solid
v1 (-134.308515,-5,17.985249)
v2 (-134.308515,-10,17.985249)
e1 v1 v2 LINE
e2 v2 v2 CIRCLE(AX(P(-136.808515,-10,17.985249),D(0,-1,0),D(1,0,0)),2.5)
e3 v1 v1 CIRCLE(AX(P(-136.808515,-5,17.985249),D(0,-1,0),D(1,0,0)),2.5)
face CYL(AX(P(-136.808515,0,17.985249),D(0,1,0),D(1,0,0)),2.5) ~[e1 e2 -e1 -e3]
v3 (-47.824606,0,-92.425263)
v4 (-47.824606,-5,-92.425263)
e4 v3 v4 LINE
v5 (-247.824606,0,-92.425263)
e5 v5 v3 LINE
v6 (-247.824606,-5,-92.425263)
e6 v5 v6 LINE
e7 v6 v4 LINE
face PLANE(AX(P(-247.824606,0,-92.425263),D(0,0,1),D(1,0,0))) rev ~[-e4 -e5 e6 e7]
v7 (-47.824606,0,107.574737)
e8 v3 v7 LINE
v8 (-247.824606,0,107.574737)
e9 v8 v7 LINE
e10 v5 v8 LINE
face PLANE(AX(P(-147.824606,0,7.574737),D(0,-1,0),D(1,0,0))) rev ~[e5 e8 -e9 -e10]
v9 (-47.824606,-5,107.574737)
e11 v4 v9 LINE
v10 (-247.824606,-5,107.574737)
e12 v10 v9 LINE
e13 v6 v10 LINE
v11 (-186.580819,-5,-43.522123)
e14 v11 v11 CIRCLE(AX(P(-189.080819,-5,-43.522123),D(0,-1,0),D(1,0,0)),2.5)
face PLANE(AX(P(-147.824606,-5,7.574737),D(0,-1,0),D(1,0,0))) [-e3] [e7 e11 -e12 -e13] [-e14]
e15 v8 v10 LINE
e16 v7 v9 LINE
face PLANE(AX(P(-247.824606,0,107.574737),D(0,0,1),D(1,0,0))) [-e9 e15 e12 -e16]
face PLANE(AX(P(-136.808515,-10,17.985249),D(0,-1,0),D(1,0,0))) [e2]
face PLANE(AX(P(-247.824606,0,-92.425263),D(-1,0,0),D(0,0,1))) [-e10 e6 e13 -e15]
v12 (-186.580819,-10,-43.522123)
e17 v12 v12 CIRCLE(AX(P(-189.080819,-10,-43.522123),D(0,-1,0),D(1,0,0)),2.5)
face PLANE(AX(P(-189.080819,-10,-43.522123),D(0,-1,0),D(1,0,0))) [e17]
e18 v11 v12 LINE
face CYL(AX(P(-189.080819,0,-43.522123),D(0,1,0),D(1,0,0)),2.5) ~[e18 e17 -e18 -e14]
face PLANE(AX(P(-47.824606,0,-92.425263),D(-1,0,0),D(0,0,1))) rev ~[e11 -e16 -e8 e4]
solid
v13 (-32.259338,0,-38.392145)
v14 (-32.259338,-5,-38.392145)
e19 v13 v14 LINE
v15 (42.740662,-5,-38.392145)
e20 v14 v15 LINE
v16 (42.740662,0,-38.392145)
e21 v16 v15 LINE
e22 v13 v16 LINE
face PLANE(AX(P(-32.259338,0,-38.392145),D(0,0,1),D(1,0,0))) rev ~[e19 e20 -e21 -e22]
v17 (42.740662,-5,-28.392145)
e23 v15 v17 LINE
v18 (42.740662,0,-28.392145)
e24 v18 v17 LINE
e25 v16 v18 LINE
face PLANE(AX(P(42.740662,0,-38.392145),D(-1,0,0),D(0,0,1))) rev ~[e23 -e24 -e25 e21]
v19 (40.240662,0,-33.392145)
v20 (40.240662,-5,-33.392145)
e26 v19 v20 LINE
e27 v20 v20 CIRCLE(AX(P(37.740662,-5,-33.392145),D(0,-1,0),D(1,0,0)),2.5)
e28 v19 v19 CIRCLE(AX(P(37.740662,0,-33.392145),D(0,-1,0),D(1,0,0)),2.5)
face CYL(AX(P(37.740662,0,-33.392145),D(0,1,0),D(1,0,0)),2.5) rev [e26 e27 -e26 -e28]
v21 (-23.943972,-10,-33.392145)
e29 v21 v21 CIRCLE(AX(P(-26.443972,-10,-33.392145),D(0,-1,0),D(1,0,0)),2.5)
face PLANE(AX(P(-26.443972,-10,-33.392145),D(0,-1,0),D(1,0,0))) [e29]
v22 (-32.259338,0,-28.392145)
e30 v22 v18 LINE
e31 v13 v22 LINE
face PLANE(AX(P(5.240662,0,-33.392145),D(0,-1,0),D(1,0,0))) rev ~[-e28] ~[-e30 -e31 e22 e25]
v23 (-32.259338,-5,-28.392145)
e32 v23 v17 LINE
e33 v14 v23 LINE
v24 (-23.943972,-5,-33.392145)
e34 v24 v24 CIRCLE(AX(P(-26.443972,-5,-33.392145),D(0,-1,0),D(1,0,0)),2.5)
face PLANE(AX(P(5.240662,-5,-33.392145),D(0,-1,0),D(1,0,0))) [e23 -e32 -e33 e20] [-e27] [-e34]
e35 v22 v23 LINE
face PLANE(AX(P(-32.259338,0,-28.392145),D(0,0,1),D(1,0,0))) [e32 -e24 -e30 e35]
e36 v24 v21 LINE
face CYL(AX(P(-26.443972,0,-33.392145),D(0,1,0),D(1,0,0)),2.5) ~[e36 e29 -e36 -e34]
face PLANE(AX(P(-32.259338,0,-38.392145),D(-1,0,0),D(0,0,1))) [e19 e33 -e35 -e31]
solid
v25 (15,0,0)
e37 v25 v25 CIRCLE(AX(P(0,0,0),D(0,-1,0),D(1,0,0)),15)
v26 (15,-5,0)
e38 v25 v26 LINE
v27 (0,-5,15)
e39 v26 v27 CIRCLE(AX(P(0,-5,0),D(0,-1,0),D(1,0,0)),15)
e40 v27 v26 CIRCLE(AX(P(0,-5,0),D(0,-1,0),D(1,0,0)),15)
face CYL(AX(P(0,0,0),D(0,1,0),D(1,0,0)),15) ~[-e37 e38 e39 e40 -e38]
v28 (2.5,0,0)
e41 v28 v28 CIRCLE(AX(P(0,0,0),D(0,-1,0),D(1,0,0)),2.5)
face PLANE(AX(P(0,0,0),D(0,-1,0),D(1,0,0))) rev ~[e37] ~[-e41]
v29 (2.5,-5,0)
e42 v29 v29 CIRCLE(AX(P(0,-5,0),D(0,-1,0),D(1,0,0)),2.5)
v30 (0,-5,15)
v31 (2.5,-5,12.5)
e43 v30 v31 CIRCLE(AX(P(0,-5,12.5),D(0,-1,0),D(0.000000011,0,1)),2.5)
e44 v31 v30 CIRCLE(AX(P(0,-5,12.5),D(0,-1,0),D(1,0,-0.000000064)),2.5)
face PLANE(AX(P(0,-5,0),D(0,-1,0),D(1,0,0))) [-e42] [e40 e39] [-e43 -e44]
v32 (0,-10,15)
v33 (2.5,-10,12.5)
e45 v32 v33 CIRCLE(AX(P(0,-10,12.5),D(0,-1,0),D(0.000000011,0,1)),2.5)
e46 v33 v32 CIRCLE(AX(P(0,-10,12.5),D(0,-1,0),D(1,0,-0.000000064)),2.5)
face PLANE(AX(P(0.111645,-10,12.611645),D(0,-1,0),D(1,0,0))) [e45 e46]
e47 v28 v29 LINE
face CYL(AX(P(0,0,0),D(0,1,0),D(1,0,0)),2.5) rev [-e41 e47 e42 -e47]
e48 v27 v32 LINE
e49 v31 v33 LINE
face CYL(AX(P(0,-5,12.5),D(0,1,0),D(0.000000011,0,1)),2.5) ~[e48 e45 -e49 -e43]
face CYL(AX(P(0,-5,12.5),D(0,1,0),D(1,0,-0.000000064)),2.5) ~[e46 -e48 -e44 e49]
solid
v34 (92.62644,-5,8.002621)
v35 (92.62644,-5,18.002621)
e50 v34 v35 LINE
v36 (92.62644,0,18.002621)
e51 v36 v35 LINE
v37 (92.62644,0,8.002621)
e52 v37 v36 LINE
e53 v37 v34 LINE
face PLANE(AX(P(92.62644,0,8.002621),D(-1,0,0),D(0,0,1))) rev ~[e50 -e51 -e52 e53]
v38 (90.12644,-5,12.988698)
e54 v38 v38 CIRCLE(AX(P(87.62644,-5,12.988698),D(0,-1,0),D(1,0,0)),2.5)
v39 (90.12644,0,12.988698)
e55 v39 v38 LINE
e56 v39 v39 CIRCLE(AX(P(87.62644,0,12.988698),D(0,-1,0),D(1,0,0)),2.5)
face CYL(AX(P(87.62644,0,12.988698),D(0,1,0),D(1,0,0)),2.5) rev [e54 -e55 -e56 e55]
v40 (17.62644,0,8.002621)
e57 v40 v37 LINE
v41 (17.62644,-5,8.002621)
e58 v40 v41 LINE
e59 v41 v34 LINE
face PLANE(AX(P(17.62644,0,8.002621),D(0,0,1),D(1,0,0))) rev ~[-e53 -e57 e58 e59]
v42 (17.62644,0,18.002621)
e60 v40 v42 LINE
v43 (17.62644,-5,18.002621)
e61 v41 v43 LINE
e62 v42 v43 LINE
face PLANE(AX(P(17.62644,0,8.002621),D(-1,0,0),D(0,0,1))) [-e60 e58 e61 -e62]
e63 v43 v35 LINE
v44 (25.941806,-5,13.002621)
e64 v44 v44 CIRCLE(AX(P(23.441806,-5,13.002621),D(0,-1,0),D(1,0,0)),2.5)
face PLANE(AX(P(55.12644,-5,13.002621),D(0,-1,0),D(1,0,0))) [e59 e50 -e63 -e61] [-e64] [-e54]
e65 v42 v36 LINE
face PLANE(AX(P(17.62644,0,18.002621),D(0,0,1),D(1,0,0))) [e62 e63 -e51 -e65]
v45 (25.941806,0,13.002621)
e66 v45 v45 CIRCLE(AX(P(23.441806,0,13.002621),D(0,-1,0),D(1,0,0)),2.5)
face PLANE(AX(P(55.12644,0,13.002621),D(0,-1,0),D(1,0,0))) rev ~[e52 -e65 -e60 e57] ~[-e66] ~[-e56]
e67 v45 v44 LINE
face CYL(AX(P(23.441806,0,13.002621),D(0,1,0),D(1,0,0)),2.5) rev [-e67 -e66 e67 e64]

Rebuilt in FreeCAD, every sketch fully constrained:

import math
import FreeCAD as App
import Part
import Sketcher
Q = App.Units.Quantity


def add_polygon(sketch, points):
    """Adds a closed chain of lines whose ends are joined by coincident constraints."""
    first, n = sketch.GeometryCount, len(points)
    for a, b in zip(points, points[1:] + points[:1]):
        sketch.addGeometry(Part.LineSegment(App.Vector(*a, 0), App.Vector(*b, 0)), False)
    for i in range(n):
        sketch.addConstraint(Sketcher.Constraint("Coincident", first + i, 2, first + (i + 1) % n, 1))

doc = App.newDocument("Part")
params = doc.addObject("Spreadsheet::Sheet", "Params")
for row, (alias, value) in enumerate([
    ("sketch1_diameter", "30 mm"),
    ("sketch1_diameter2", "5 mm"),
    ("pad1_length", "5 mm"),
    ("sketch2_radius", "2.5 mm"),
    ("pad2_length", "5 mm"),
    ("sketch3_diameter", "5 mm"),
    ("sketch3_width", "200 mm"),
    ("pad3_length", "5 mm"),
    ("sketch4_diameter", "5 mm"),
    ("pad4_length", "10 mm"),
    ("sketch5_diameter", "5 mm"),
    ("pad5_length", "10 mm"),
    ("sketch6_diameter", "5 mm"),
    ("sketch6_width", "75 mm"),
    ("sketch6_height", "10 mm"),
    ("pad6_length", "5 mm"),
    ("sketch7_diameter", "5 mm"),
    ("sketch7_width", "75 mm"),
    ("sketch7_height", "10 mm"),
    ("pad7_length", "5 mm"),
    ("sketch8_diameter", "5 mm"),
    ("pad8_length", "10 mm"),
], start=1):
    params.set(f"A{row}", alias)
    params.set(f"B{row}", "=" + value)
    params.setAlias(f"B{row}", alias)

body = doc.addObject("PartDesign::Body", "Body")

# Sketch on XZ plane
sketch1 = doc.addObject("Sketcher::SketchObject", "Sketch")
body.addObject(sketch1)
sketch1.AttachmentSupport = (doc.XZ_Plane, [""])
sketch1.MapMode = "FlatFace"
sketch1.addGeometry([
    Part.Circle(App.Vector(0, 0, 0), App.Vector(0, 0, 1), 15),
    Part.Circle(App.Vector(0, 0, 0), App.Vector(0, 0, 1), 2.5),
], False)
sketch1.addConstraint([
    Sketcher.Constraint("Coincident", 0, 3, -1, 1),
    Sketcher.Constraint("Coincident", 1, 3, -1, 1),
    Sketcher.Constraint("Diameter", 0, Q("30 mm")),
    Sketcher.Constraint("Diameter", 1, Q("5 mm")),
])
sketch1.setExpression("Constraints[2]", "Params.sketch1_diameter")
sketch1.setExpression("Constraints[3]", "Params.sketch1_diameter2")
pad1 = doc.addObject("PartDesign::Pad", "Pad")
body.addObject(pad1)
pad1.Profile = sketch1
pad1.setExpression("Length", "Params.pad1_length")

# Sketch on XZ plane
sketch2 = doc.addObject("Sketcher::SketchObject", "Sketch001")
body.addObject(sketch2)
sketch2.AttachmentSupport = (doc.XZ_Plane, [""])
sketch2.MapMode = "FlatFace"
sketch2.AttachmentOffset = App.Placement(App.Vector(0, 0, 5), App.Rotation())
sketch2.addGeometry([
    Part.ArcOfCircle(Part.Circle(App.Vector(0, 12.5, 0), App.Vector(0, 0, 1), 2.5), math.radians(90), math.radians(360)),
    Part.ArcOfCircle(Part.Circle(App.Vector(0, 12.5, 0), App.Vector(0, 0, 1), 2.5), math.radians(0), math.radians(90)),
], False)
sketch2.addConstraint([
    Sketcher.Constraint("Tangent", 0, 1, 1, 2),
    Sketcher.Constraint("Coincident", 1, 1, 0, 2),
    Sketcher.Constraint("PointOnObject", 0, 3, -2),
    Sketcher.Constraint("PointOnObject", 0, 1, -2),
    Sketcher.Constraint("Horizontal", 0, 3, 1, 1),
    Sketcher.Constraint("Radius", 0, Q("2.5 mm")),
    Sketcher.Constraint("DistanceY", -1, 1, 0, 1, Q("15 mm")),
])
sketch2.setExpression("Constraints[5]", "Params.sketch2_radius")
pad2 = doc.addObject("PartDesign::Pad", "Pad001")
body.addObject(pad2)
pad2.Profile = sketch2
pad2.setExpression("Length", "Params.pad2_length")
body2 = doc.addObject("PartDesign::Body", "Body001")

# Sketch on XZ plane
sketch3 = doc.addObject("Sketcher::SketchObject", "Sketch002")
body2.addObject(sketch3)
sketch3.AttachmentSupport = (doc.getObject("XZ_Plane001"), [""])
sketch3.MapMode = "FlatFace"
add_polygon(sketch3, [(-247.8, 107.6), (-247.8, -92.4), (-47.8, -92.4), (-47.8, 107.6)])  # lines 0-3
sketch3.addGeometry(Part.Circle(App.Vector(-189.1, -43.5, 0), App.Vector(0, 0, 1), 2.5), False)  # 4
sketch3.addGeometry(Part.Circle(App.Vector(-136.8, 18, 0), App.Vector(0, 0, 1), 2.5), False)  # 5
sketch3.addConstraint([
    Sketcher.Constraint("Vertical", 0),
    Sketcher.Constraint("Horizontal", 1),
    Sketcher.Constraint("Vertical", 2),
    Sketcher.Constraint("Horizontal", 3),
    Sketcher.Constraint("Equal", 4, 5),
    Sketcher.Constraint("Equal", 3, 0),
    Sketcher.Constraint("Diameter", 4, Q("5 mm")),
    Sketcher.Constraint("DistanceX", 1, 1, 1, 2, Q("200 mm")),
    Sketcher.Constraint("DistanceX", 4, 3, -1, 1, Q("189.080819 mm")),
    Sketcher.Constraint("DistanceY", -1, 1, 5, 3, Q("17.985249 mm")),
    Sketcher.Constraint("DistanceY", 0, 2, 4, 3, Q("48.90314 mm")),
    Sketcher.Constraint("DistanceX", 0, 2, 5, 3, Q("111.016091 mm")),
    Sketcher.Constraint("DistanceY", 0, 2, 5, 3, Q("110.410512 mm")),
    Sketcher.Constraint("DistanceX", 5, 3, -1, 1, Q("136.808515 mm")),
])
sketch3.setExpression("Constraints[10]", "Params.sketch3_diameter")
sketch3.setExpression("Constraints[11]", "Params.sketch3_width")
pad3 = doc.addObject("PartDesign::Pad", "Pad002")
body2.addObject(pad3)
pad3.Profile = sketch3
pad3.setExpression("Length", "Params.pad3_length")

# Sketch on XZ plane
sketch4 = doc.addObject("Sketcher::SketchObject", "Sketch003")
body2.addObject(sketch4)
sketch4.AttachmentSupport = (doc.getObject("XZ_Plane001"), [""])
sketch4.MapMode = "FlatFace"
sketch4.addGeometry(Part.Circle(App.Vector(-189.1, -43.5, 0), App.Vector(0, 0, 1), 2.5), False)
sketch4.addConstraint([
    Sketcher.Constraint("Diameter", 0, Q("5 mm")),
    Sketcher.Constraint("DistanceX", 0, 3, -1, 1, Q("189.080819 mm")),
    Sketcher.Constraint("DistanceY", 0, 3, -1, 1, Q("43.522123 mm")),
])
sketch4.setExpression("Constraints[0]", "Params.sketch4_diameter")
pad4 = doc.addObject("PartDesign::Pad", "Pad003")
body2.addObject(pad4)
pad4.Profile = sketch4
pad4.setExpression("Length", "Params.pad4_length")

# Sketch on XZ plane
sketch5 = doc.addObject("Sketcher::SketchObject", "Sketch004")
body2.addObject(sketch5)
sketch5.AttachmentSupport = (doc.getObject("XZ_Plane001"), [""])
sketch5.MapMode = "FlatFace"
sketch5.addGeometry(Part.Circle(App.Vector(-136.8, 18, 0), App.Vector(0, 0, 1), 2.5), False)
sketch5.addConstraint([
    Sketcher.Constraint("Diameter", 0, Q("5 mm")),
    Sketcher.Constraint("DistanceY", -1, 1, 0, 3, Q("17.985249 mm")),
    Sketcher.Constraint("DistanceX", 0, 3, -1, 1, Q("136.808515 mm")),
])
sketch5.setExpression("Constraints[0]", "Params.sketch5_diameter")
pad5 = doc.addObject("PartDesign::Pad", "Pad004")
body2.addObject(pad5)
pad5.Profile = sketch5
pad5.setExpression("Length", "Params.pad5_length")
body3 = doc.addObject("PartDesign::Body", "Body002")

# Sketch on XZ plane
sketch6 = doc.addObject("Sketcher::SketchObject", "Sketch005")
body3.addObject(sketch6)
sketch6.AttachmentSupport = (doc.getObject("XZ_Plane002"), [""])
sketch6.MapMode = "FlatFace"
add_polygon(sketch6, [(17.6, 18), (17.6, 8), (92.6, 8), (92.6, 18)])  # lines 0-3
sketch6.addGeometry(Part.Circle(App.Vector(87.6, 13, 0), App.Vector(0, 0, 1), 2.5), False)  # 4
sketch6.addGeometry(Part.Circle(App.Vector(23.4, 13, 0), App.Vector(0, 0, 1), 2.5), False)  # 5
sketch6.addConstraint([
    Sketcher.Constraint("Vertical", 0),
    Sketcher.Constraint("Horizontal", 1),
    Sketcher.Constraint("Vertical", 2),
    Sketcher.Constraint("Horizontal", 3),
    Sketcher.Constraint("Equal", 4, 5),
    Sketcher.Constraint("Diameter", 4, Q("5 mm")),
    Sketcher.Constraint("DistanceX", 1, 1, 1, 2, Q("75 mm")),
    Sketcher.Constraint("DistanceY", 0, 2, 0, 1, Q("10 mm")),
    Sketcher.Constraint("DistanceY", 0, 2, 5, 3, Q("5 mm")),
    Sketcher.Constraint("DistanceX", 0, 2, 4, 3, Q("70 mm")),
    Sketcher.Constraint("DistanceX", -1, 1, 4, 3, Q("87.62644 mm")),
    Sketcher.Constraint("DistanceY", -1, 1, 5, 3, Q("13.002621 mm")),
    Sketcher.Constraint("DistanceY", -1, 1, 4, 3, Q("12.988698 mm")),
    Sketcher.Constraint("DistanceX", -1, 1, 5, 3, Q("23.441806 mm")),
])
sketch6.setExpression("Constraints[9]", "Params.sketch6_diameter")
sketch6.setExpression("Constraints[10]", "Params.sketch6_width")
sketch6.setExpression("Constraints[11]", "Params.sketch6_height")
pad6 = doc.addObject("PartDesign::Pad", "Pad005")
body3.addObject(pad6)
pad6.Profile = sketch6
pad6.setExpression("Length", "Params.pad6_length")
body4 = doc.addObject("PartDesign::Body", "Body003")

# Sketch on XZ plane
sketch7 = doc.addObject("Sketcher::SketchObject", "Sketch006")
body4.addObject(sketch7)
sketch7.AttachmentSupport = (doc.getObject("XZ_Plane003"), [""])
sketch7.MapMode = "FlatFace"
add_polygon(sketch7, [(-32.3, -28.4), (-32.3, -38.4), (42.7, -38.4), (42.7, -28.4)])  # lines 0-3
sketch7.addGeometry(Part.Circle(App.Vector(-26.4, -33.4, 0), App.Vector(0, 0, 1), 2.5), False)  # 4
sketch7.addGeometry(Part.Circle(App.Vector(37.7, -33.4, 0), App.Vector(0, 0, 1), 2.5), False)  # 5
sketch7.addConstraint([
    Sketcher.Constraint("Vertical", 0),
    Sketcher.Constraint("Horizontal", 1),
    Sketcher.Constraint("Vertical", 2),
    Sketcher.Constraint("Horizontal", 3),
    Sketcher.Constraint("Equal", 4, 5),
    Sketcher.Constraint("Horizontal", 4, 3, 5, 3),
    Sketcher.Constraint("Diameter", 4, Q("5 mm")),
    Sketcher.Constraint("DistanceX", 1, 1, 1, 2, Q("75 mm")),
    Sketcher.Constraint("DistanceY", 0, 2, 0, 1, Q("10 mm")),
    Sketcher.Constraint("DistanceY", 0, 2, 4, 3, Q("5 mm")),
    Sketcher.Constraint("DistanceX", 0, 2, 5, 3, Q("70 mm")),
    Sketcher.Constraint("DistanceX", 4, 3, -1, 1, Q("26.443972 mm")),
    Sketcher.Constraint("DistanceY", 4, 3, -1, 1, Q("33.392145 mm")),
    Sketcher.Constraint("DistanceX", -1, 1, 5, 3, Q("37.740662 mm")),
])
sketch7.setExpression("Constraints[10]", "Params.sketch7_diameter")
sketch7.setExpression("Constraints[11]", "Params.sketch7_width")
sketch7.setExpression("Constraints[12]", "Params.sketch7_height")
pad7 = doc.addObject("PartDesign::Pad", "Pad006")
body4.addObject(pad7)
pad7.Profile = sketch7
pad7.setExpression("Length", "Params.pad7_length")

# Sketch on XZ plane
sketch8 = doc.addObject("Sketcher::SketchObject", "Sketch007")
body4.addObject(sketch8)
sketch8.AttachmentSupport = (doc.getObject("XZ_Plane003"), [""])
sketch8.MapMode = "FlatFace"
sketch8.addGeometry(Part.Circle(App.Vector(-26.4, -33.4, 0), App.Vector(0, 0, 1), 2.5), False)
sketch8.addConstraint([
    Sketcher.Constraint("Diameter", 0, Q("5 mm")),
    Sketcher.Constraint("DistanceX", 0, 3, -1, 1, Q("26.443972 mm")),
    Sketcher.Constraint("DistanceY", 0, 3, -1, 1, Q("33.392145 mm")),
])
sketch8.setExpression("Constraints[0]", "Params.sketch8_diameter")
pad8 = doc.addObject("PartDesign::Pad", "Pad007")
body4.addObject(pad8)
pad8.Profile = sketch8
pad8.setExpression("Length", "Params.pad8_length")

doc.recompute()
